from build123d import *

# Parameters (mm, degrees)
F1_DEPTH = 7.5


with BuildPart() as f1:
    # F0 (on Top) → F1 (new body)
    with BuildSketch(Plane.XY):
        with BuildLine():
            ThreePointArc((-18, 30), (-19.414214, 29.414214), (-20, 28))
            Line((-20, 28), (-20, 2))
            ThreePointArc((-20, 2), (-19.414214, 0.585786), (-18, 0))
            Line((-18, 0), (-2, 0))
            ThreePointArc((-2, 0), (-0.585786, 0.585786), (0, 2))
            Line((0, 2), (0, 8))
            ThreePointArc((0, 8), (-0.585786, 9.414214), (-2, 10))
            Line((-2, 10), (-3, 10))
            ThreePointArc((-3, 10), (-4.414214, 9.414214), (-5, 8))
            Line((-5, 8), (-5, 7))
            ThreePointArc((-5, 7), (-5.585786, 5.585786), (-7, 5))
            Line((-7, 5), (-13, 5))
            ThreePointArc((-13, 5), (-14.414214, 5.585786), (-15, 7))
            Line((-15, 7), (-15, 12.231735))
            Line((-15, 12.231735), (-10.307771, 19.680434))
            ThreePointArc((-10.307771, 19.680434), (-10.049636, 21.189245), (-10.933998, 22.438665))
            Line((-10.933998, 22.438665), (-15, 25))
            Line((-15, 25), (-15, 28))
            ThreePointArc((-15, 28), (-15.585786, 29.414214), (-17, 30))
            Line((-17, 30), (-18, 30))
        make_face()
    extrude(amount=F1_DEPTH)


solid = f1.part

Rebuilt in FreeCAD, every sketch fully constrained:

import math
import FreeCAD as App
import Part
import Sketcher

doc = App.newDocument("Part")
body = doc.addObject("PartDesign::Body", "Body")

# Sketch on XY plane
sketch1 = doc.addObject("Sketcher::SketchObject", "Sketch")
body.addObject(sketch1)
sketch1.AttachmentSupport = (doc.XY_Plane, [""])
sketch1.MapMode = "FlatFace"
sketch1.addGeometry([
    Part.ArcOfCircle(Part.Circle(App.Vector(-18, 28, 0), App.Vector(0, 0, 1), 2), math.radians(90), math.radians(180)),  # 0
    Part.LineSegment(App.Vector(-20, 28, 0), App.Vector(-20, 2, 0)),  # 1
    Part.ArcOfCircle(Part.Circle(App.Vector(-18, 2, 0), App.Vector(0, 0, 1), 2), math.radians(180), math.radians(270)),  # 2
    Part.LineSegment(App.Vector(-18, 0, 0), App.Vector(-2, 0, 0)),  # 3
    Part.ArcOfCircle(Part.Circle(App.Vector(-2, 2, 0), App.Vector(0, 0, 1), 2), math.radians(-90), math.radians(0)),  # 4
    Part.LineSegment(App.Vector(0, 2, 0), App.Vector(0, 8, 0)),  # 5
    Part.ArcOfCircle(Part.Circle(App.Vector(-2, 8, 0), App.Vector(0, 0, 1), 2), math.radians(0), math.radians(90)),  # 6
    Part.LineSegment(App.Vector(-2, 10, 0), App.Vector(-3, 10, 0)),  # 7
    Part.ArcOfCircle(Part.Circle(App.Vector(-3, 8, 0), App.Vector(0, 0, 1), 2), math.radians(90), math.radians(180)),  # 8
    Part.LineSegment(App.Vector(-5, 8, 0), App.Vector(-5, 7, 0)),  # 9
    Part.ArcOfCircle(Part.Circle(App.Vector(-7, 7, 0), App.Vector(0, 0, 1), 2), math.radians(-90), math.radians(0)),  # 10
    Part.LineSegment(App.Vector(-7, 5, 0), App.Vector(-13, 5, 0)),  # 11
    Part.ArcOfCircle(Part.Circle(App.Vector(-13, 7, 0), App.Vector(0, 0, 1), 2), math.radians(180), math.radians(270)),  # 12
    Part.LineSegment(App.Vector(-15, 7, 0), App.Vector(-15, 12.2, 0)),  # 13
    Part.LineSegment(App.Vector(-15, 12.2, 0), App.Vector(-10.3, 19.7, 0)),  # 14
    Part.ArcOfCircle(Part.Circle(App.Vector(-12, 20.7, 0), App.Vector(0, 0, 1), 2), math.radians(-32), math.radians(58)),  # 15
    Part.LineSegment(App.Vector(-10.9, 22.4, 0), App.Vector(-15, 25, 0)),  # 16
    Part.LineSegment(App.Vector(-15, 25, 0), App.Vector(-15, 28, 0)),  # 17
    Part.ArcOfCircle(Part.Circle(App.Vector(-17, 28, 0), App.Vector(0, 0, 1), 2), math.radians(0), math.radians(90)),  # 18
    Part.LineSegment(App.Vector(-17, 30, 0), App.Vector(-18, 30, 0)),  # 19
], False)
sketch1.addConstraint([
    Sketcher.Constraint("Tangent", 0, 2, 1, 1),
    Sketcher.Constraint("Tangent", 1, 2, 2, 1),
    Sketcher.Constraint("Tangent", 2, 2, 3, 1),
    Sketcher.Constraint("Tangent", 3, 2, 4, 1),
    Sketcher.Constraint("Tangent", 4, 2, 5, 1),
    Sketcher.Constraint("Tangent", 5, 2, 6, 1),
    Sketcher.Constraint("Tangent", 6, 2, 7, 1),
    Sketcher.Constraint("Tangent", 7, 2, 8, 1),
    Sketcher.Constraint("Tangent", 8, 2, 9, 1),
    Sketcher.Constraint("Tangent", 9, 2, 10, 2),
    Sketcher.Constraint("Tangent", 10, 1, 11, 1),
    Sketcher.Constraint("Tangent", 11, 2, 12, 2),
    Sketcher.Constraint("Tangent", 12, 1, 13, 1),
    Sketcher.Constraint("Coincident", 13, 2, 14, 1),
    Sketcher.Constraint("Tangent", 14, 2, 15, 1),
    Sketcher.Constraint("Tangent", 15, 2, 16, 1),
    Sketcher.Constraint("Coincident", 16, 2, 17, 1),
    Sketcher.Constraint("Tangent", 17, 2, 18, 1),
    Sketcher.Constraint("Tangent", 18, 2, 19, 1),
    Sketcher.Constraint("Tangent", 19, 2, 0, 1),
    Sketcher.Constraint("Vertical", 1),
    Sketcher.Constraint("Horizontal", 3),
    Sketcher.Constraint("Vertical", 5),
    Sketcher.Constraint("Horizontal", 7),
    Sketcher.Constraint("Vertical", 9),
    Sketcher.Constraint("Horizontal", 11),
    Sketcher.Constraint("Vertical", 13),
    Sketcher.Constraint("Vertical", 17),
    Sketcher.Constraint("Horizontal", 19),
    Sketcher.Constraint("Equal", 0, 2),
    Sketcher.Constraint("Equal", 2, 4),
    Sketcher.Constraint("Equal", 4, 6),
    Sketcher.Constraint("Equal", 6, 8),
    Sketcher.Constraint("Equal", 8, 10),
    Sketcher.Constraint("Equal", 10, 12),
    Sketcher.Constraint("Equal", 12, 15),
    Sketcher.Constraint("Equal", 15, 18),
    Sketcher.Constraint("PointOnObject", 2, 2, -1),
    Sketcher.Constraint("PointOnObject", 4, 2, -2),
    Sketcher.Constraint("Perpendicular", 14, 16),
    Sketcher.Constraint("Vertical", 13, 2, 16, 2),
    Sketcher.Constraint("Equal", 7, 19),
    Sketcher.Constraint("Equal", 11, 5),
    Sketcher.Constraint("Equal", 19, 9),
    Sketcher.Constraint("Radius", 0, 1.999999),
    Sketcher.Constraint("DistanceX", 3, 1, 3, 2, 16.0),
    Sketcher.Constraint("DistanceX", 7, 2, 7, 1, 1.0),
    Sketcher.Constraint("DistanceY", 1, 2, 1, 1, 26.0),
    Sketcher.Constraint("DistanceY", 17, 1, 17, 2, 3.0),
    Sketcher.Constraint("DistanceX", 15, 3, -1, 1, 12.0),
    Sketcher.Constraint("DistanceX", 15, 3, 15, 2, 1.066002),
])
pad1 = doc.addObject("PartDesign::Pad", "Pad")
body.addObject(pad1)
pad1.Profile = sketch1
pad1.Length = 7.5

doc.recompute()
